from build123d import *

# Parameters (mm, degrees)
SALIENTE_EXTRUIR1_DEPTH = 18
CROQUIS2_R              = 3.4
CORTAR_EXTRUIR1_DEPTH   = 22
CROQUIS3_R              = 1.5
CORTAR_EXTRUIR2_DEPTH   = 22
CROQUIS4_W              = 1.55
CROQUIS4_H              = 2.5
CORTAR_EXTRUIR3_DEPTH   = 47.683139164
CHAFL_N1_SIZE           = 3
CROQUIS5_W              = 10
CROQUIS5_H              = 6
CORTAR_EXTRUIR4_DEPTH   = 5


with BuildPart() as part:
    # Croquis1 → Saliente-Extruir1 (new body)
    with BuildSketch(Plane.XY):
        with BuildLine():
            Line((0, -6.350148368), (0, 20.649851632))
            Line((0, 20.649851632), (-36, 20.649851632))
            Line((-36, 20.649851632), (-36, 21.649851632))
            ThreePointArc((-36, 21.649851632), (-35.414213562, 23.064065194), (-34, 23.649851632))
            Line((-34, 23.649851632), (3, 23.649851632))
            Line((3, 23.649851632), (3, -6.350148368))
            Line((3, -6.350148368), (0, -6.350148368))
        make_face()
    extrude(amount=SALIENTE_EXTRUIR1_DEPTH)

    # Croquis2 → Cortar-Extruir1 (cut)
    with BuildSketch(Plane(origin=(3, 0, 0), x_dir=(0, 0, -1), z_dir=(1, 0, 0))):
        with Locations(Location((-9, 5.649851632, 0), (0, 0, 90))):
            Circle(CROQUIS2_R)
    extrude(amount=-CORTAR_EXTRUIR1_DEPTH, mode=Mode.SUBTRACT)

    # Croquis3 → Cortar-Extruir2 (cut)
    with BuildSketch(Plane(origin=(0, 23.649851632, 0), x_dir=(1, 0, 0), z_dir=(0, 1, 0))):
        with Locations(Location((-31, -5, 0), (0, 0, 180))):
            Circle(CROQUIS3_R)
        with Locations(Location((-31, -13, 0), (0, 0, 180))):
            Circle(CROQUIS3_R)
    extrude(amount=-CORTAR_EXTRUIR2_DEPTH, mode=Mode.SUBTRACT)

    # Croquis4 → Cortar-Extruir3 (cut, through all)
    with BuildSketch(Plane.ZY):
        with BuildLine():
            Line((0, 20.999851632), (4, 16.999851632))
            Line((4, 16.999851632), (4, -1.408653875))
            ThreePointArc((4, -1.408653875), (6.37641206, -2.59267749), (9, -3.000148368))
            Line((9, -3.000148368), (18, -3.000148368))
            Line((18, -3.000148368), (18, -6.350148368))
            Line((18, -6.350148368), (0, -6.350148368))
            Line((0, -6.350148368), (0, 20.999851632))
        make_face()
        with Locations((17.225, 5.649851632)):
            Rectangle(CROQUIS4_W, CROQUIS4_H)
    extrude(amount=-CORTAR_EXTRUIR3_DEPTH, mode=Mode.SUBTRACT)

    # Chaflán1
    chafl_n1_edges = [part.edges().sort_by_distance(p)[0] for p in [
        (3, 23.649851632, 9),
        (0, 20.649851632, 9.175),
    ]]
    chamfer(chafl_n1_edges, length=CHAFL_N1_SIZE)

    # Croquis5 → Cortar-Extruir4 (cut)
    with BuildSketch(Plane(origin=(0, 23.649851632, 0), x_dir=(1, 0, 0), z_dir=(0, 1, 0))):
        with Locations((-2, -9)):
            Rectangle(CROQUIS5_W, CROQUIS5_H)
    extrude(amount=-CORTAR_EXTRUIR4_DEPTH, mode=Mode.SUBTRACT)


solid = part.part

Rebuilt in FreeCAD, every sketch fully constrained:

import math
import FreeCAD as App
import Part
import Sketcher
from FreeCAD import Vector
Q = App.Units.Quantity


def edges_at(feature, points):
    """Names of the edges that pass closest to the given points."""
    edges = feature.Shape.Edges
    near = lambda p: min(range(len(edges)), key=lambda i: edges[i].distToShape(Part.Vertex(*p))[0])
    return sorted({f"Edge{near(p) + 1}" for p in points})

doc = App.newDocument("Part")
body = doc.addObject("PartDesign::Body", "Body")

# Sketch on XY plane
sketch1 = body.newObject("Sketcher::SketchObject", "Sketch")
sketch1.AttachmentSupport = (doc.getObject("XY_Plane"), [""])
sketch1.MapMode = "FlatFace"
sketch1.addGeometry(Part.LineSegment(Vector(0, 20.649852, 0), Vector(0, -6.350148, 0)), False)
sketch1.addGeometry(Part.LineSegment(Vector(0, -6.350148, 0), Vector(3, -6.350148, 0)), False)
sketch1.addGeometry(Part.LineSegment(Vector(3, -6.350148, 0), Vector(3, 23.649852, 0)), False)
sketch1.addGeometry(Part.LineSegment(Vector(3, 23.649852, 0), Vector(-34, 23.649852, 0)), False)
sketch1.addGeometry(Part.ArcOfCircle(Part.Circle(Vector(-34, 21.649852, 0), Vector(0, 0, 1), 2), math.radians(90), math.radians(180)), False)
sketch1.addGeometry(Part.LineSegment(Vector(-36, 21.649852, 0), Vector(-36, 20.649852, 0)), False)
sketch1.addGeometry(Part.LineSegment(Vector(-36, 20.649852, 0), Vector(0, 20.649852, 0)), False)
sketch1.addConstraint(Sketcher.Constraint("Coincident", 0, 2, 1, 1))
sketch1.addConstraint(Sketcher.Constraint("Coincident", 1, 2, 2, 1))
sketch1.addConstraint(Sketcher.Constraint("Coincident", 2, 2, 3, 1))
sketch1.addConstraint(Sketcher.Constraint("Tangent", 3, 2, 4, 1))
sketch1.addConstraint(Sketcher.Constraint("Tangent", 4, 2, 5, 1))
sketch1.addConstraint(Sketcher.Constraint("Coincident", 5, 2, 6, 1))
sketch1.addConstraint(Sketcher.Constraint("Coincident", 6, 2, 0, 1))
sketch1.addConstraint(Sketcher.Constraint("Vertical", 0))
sketch1.addConstraint(Sketcher.Constraint("Horizontal", 1))
sketch1.addConstraint(Sketcher.Constraint("Vertical", 2))
sketch1.addConstraint(Sketcher.Constraint("Horizontal", 3))
sketch1.addConstraint(Sketcher.Constraint("Vertical", 5))
sketch1.addConstraint(Sketcher.Constraint("Horizontal", 6))
sketch1.addConstraint(Sketcher.Constraint("PointOnObject", 0, 2, -2))
sketch1.addConstraint(Sketcher.Constraint("Radius", 4, Q("2 mm")))
sketch1.addConstraint(Sketcher.Constraint("DistanceX", 1, 1, 1, 2, Q("3 mm")))
sketch1.addConstraint(Sketcher.Constraint("DistanceX", 3, 2, 3, 1, Q("37 mm")))
sketch1.addConstraint(Sketcher.Constraint("DistanceY", 0, 2, 0, 1, Q("27 mm")))
sketch1.addConstraint(Sketcher.Constraint("DistanceY", 2, 1, 2, 2, Q("30 mm")))
sketch1.addConstraint(Sketcher.Constraint("DistanceY", -1, 1, 4, 3, Q("21.649852 mm")))
pad1 = body.newObject("PartDesign::Pad", "Pad")
pad1.Profile = sketch1
pad1.Length = 18

# Sketch on YZ plane
sketch2 = body.newObject("Sketcher::SketchObject", "Sketch001")
sketch2.AttachmentSupport = (doc.getObject("YZ_Plane"), [""])
sketch2.MapMode = "FlatFace"
sketch2.AttachmentOffset = App.Placement(Vector(0, 0, 3), App.Rotation())
sketch2.addGeometry(Part.Circle(Vector(5.649852, 9, 0), Vector(0, 0, 1), 3.4), False)
sketch2.addConstraint(Sketcher.Constraint("Diameter", 0, Q("6.8 mm")))
sketch2.addConstraint(Sketcher.Constraint("DistanceY", -1, 1, 0, 3, Q("9 mm")))
sketch2.addConstraint(Sketcher.Constraint("DistanceX", -1, 1, 0, 3, Q("5.649852 mm")))
pocket1 = body.newObject("PartDesign::Pocket", "Pocket")
pocket1.Profile = sketch2
pocket1.Length = 22

# Sketch on XZ plane
sketch3 = body.newObject("Sketcher::SketchObject", "Sketch002")
sketch3.AttachmentSupport = (doc.getObject("XZ_Plane"), [""])
sketch3.MapMode = "FlatFace"
sketch3.AttachmentOffset = App.Placement(Vector(0, 0, -23.649852), App.Rotation())
sketch3.addGeometry(Part.Circle(Vector(-31, 5, 0), Vector(0, 0, 1), 1.5), False)
sketch3.addGeometry(Part.Circle(Vector(-31, 13, 0), Vector(0, 0, 1), 1.5), False)
sketch3.addConstraint(Sketcher.Constraint("Equal", 0, 1))
sketch3.addConstraint(Sketcher.Constraint("Vertical", 0, 3, 1, 3))
sketch3.addConstraint(Sketcher.Constraint("Diameter", 0, Q("3 mm")))
sketch3.addConstraint(Sketcher.Constraint("DistanceX", 0, 3, -1, 1, Q("31 mm")))
sketch3.addConstraint(Sketcher.Constraint("DistanceY", -1, 1, 0, 3, Q("5 mm")))
sketch3.addConstraint(Sketcher.Constraint("DistanceY", -1, 1, 1, 3, Q("13 mm")))
pocket2 = body.newObject("PartDesign::Pocket", "Pocket001")
pocket2.Profile = sketch3
pocket2.Length = 22
pocket2.Reversed = True

# Sketch on YZ plane
sketch4 = body.newObject("Sketcher::SketchObject", "Sketch003")
sketch4.AttachmentSupport = (doc.getObject("YZ_Plane"), [""])
sketch4.MapMode = "FlatFace"
sketch4.addGeometry(Part.LineSegment(Vector(16.999852, 4, 0), Vector(20.999852, 0, 0)), False)
sketch4.addGeometry(Part.LineSegment(Vector(20.999852, 0, 0), Vector(-6.350148, 0, 0)), False)
sketch4.addGeometry(Part.LineSegment(Vector(-6.350148, 0, 0), Vector(-6.350148, 18, 0)), False)
sketch4.addGeometry(Part.LineSegment(Vector(-6.350148, 18, 0), Vector(-3.000148, 18, 0)), False)
sketch4.addGeometry(Part.LineSegment(Vector(-3.000148, 18, 0), Vector(-3.000148, 9, 0)), False)
sketch4.addGeometry(Part.ArcOfCircle(Part.Circle(Vector(5.649852, 9, 0), Vector(0, 0, 1), 8.65), math.radians(180), math.radians(215.312431)), False)
sketch4.addGeometry(Part.LineSegment(Vector(-1.408654, 4, 0), Vector(16.999852, 4, 0)), False)
sketch4.addGeometry(Part.LineSegment(Vector(6.899852, 16.45, 0), Vector(4.399852, 16.45, 0)), False)
sketch4.addGeometry(Part.LineSegment(Vector(4.399852, 16.45, 0), Vector(4.399852, 18, 0)), False)
sketch4.addGeometry(Part.LineSegment(Vector(4.399852, 18, 0), Vector(6.899852, 18, 0)), False)
sketch4.addGeometry(Part.LineSegment(Vector(6.899852, 18, 0), Vector(6.899852, 16.45, 0)), False)
sketch4.addConstraint(Sketcher.Constraint("Coincident", 0, 2, 1, 1))
sketch4.addConstraint(Sketcher.Constraint("Coincident", 1, 2, 2, 1))
sketch4.addConstraint(Sketcher.Constraint("Coincident", 2, 2, 3, 1))
sketch4.addConstraint(Sketcher.Constraint("Coincident", 3, 2, 4, 1))
sketch4.addConstraint(Sketcher.Constraint("Tangent", 4, 2, 5, 1))
sketch4.addConstraint(Sketcher.Constraint("Coincident", 5, 2, 6, 1))
sketch4.addConstraint(Sketcher.Constraint("Coincident", 6, 2, 0, 1))
sketch4.addConstraint(Sketcher.Constraint("Coincident", 7, 2, 8, 1))
sketch4.addConstraint(Sketcher.Constraint("Coincident", 8, 2, 9, 1))
sketch4.addConstraint(Sketcher.Constraint("Coincident", 9, 2, 10, 1))
sketch4.addConstraint(Sketcher.Constraint("Coincident", 10, 2, 7, 1))
sketch4.addConstraint(Sketcher.Constraint("Horizontal", 1))
sketch4.addConstraint(Sketcher.Constraint("Vertical", 2))
sketch4.addConstraint(Sketcher.Constraint("Horizontal", 3))
sketch4.addConstraint(Sketcher.Constraint("Vertical", 4))
sketch4.addConstraint(Sketcher.Constraint("Horizontal", 6))
sketch4.addConstraint(Sketcher.Constraint("Horizontal", 7))
sketch4.addConstraint(Sketcher.Constraint("Vertical", 8))
sketch4.addConstraint(Sketcher.Constraint("Horizontal", 9))
sketch4.addConstraint(Sketcher.Constraint("Vertical", 10))
sketch4.addConstraint(Sketcher.Constraint("PointOnObject", 0, 2, -1))
sketch4.addConstraint(Sketcher.Constraint("Horizontal", 3, 2, 8, 2))
sketch4.addConstraint(Sketcher.Constraint("DistanceY", 2, 1, 2, 2, Q("18 mm")))
sketch4.addConstraint(Sketcher.Constraint("DistanceY", 4, 2, 4, 1, Q("9 mm")))
sketch4.addConstraint(Sketcher.Constraint("Angle", 0, Q("-45 deg")))
sketch4.addConstraint(Sketcher.Constraint("Radius", 5, Q("8.65 mm")))
sketch4.addConstraint(Sketcher.Constraint("DistanceX", 7, 2, 7, 1, Q("2.5 mm")))
sketch4.addConstraint(Sketcher.Constraint("DistanceY", -1, 1, 5, 2, Q("4 mm")))
sketch4.addConstraint(Sketcher.Constraint("DistanceX", 1, 2, 5, 3, Q("12 mm")))
sketch4.addConstraint(Sketcher.Constraint("DistanceX", 3, 2, 0, 2, Q("24 mm")))
sketch4.addConstraint(Sketcher.Constraint("DistanceY", 8, 1, 8, 2, Q("1.55 mm")))
sketch4.addConstraint(Sketcher.Constraint("DistanceX", 3, 2, 7, 2, Q("7.4 mm")))
sketch4.addConstraint(Sketcher.Constraint("DistanceX", -1, 1, 5, 3, Q("5.649852 mm")))
pocket3 = body.newObject("PartDesign::Pocket", "Pocket002")
pocket3.Profile = sketch4
pocket3.Type = "ThroughAll"
pocket3.Reversed = True
doc.recompute()

chamfer = body.newObject("PartDesign::Chamfer", "Chamfer")
chamfer.Base = (pocket3, edges_at(pocket3, [(3, 23.65, 9), (0, 20.65, 9.175)]))
chamfer.Size = 3

# Sketch on XZ plane
sketch5 = body.newObject("Sketcher::SketchObject", "Sketch004")
sketch5.AttachmentSupport = (doc.getObject("XZ_Plane"), [""])
sketch5.MapMode = "FlatFace"
sketch5.AttachmentOffset = App.Placement(Vector(0, 0, -23.649852), App.Rotation())
sketch5.addGeometry(Part.LineSegment(Vector(-7, 6, 0), Vector(-7, 12, 0)), False)
sketch5.addGeometry(Part.LineSegment(Vector(-7, 12, 0), Vector(3, 12, 0)), False)
sketch5.addGeometry(Part.LineSegment(Vector(3, 12, 0), Vector(3, 6, 0)), False)
sketch5.addGeometry(Part.LineSegment(Vector(3, 6, 0), Vector(-7, 6, 0)), False)
sketch5.addConstraint(Sketcher.Constraint("Coincident", 0, 2, 1, 1))
sketch5.addConstraint(Sketcher.Constraint("Coincident", 1, 2, 2, 1))
sketch5.addConstraint(Sketcher.Constraint("Coincident", 2, 2, 3, 1))
sketch5.addConstraint(Sketcher.Constraint("Coincident", 3, 2, 0, 1))
sketch5.addConstraint(Sketcher.Constraint("Vertical", 0))
sketch5.addConstraint(Sketcher.Constraint("Horizontal", 1))
sketch5.addConstraint(Sketcher.Constraint("Vertical", 2))
sketch5.addConstraint(Sketcher.Constraint("Horizontal", 3))
sketch5.addConstraint(Sketcher.Constraint("DistanceX", 1, 1, 1, 2, Q("10 mm")))
sketch5.addConstraint(Sketcher.Constraint("DistanceY", 0, 1, 0, 2, Q("6 mm")))
sketch5.addConstraint(Sketcher.Constraint("DistanceX", 0, 2, -1, 1, Q("7 mm")))
sketch5.addConstraint(Sketcher.Constraint("DistanceY", -1, 1, 0, 2, Q("12 mm")))
pocket4 = body.newObject("PartDesign::Pocket", "Pocket003")
pocket4.Profile = sketch5
pocket4.Length = 5
pocket4.Reversed = True

doc.recompute()
